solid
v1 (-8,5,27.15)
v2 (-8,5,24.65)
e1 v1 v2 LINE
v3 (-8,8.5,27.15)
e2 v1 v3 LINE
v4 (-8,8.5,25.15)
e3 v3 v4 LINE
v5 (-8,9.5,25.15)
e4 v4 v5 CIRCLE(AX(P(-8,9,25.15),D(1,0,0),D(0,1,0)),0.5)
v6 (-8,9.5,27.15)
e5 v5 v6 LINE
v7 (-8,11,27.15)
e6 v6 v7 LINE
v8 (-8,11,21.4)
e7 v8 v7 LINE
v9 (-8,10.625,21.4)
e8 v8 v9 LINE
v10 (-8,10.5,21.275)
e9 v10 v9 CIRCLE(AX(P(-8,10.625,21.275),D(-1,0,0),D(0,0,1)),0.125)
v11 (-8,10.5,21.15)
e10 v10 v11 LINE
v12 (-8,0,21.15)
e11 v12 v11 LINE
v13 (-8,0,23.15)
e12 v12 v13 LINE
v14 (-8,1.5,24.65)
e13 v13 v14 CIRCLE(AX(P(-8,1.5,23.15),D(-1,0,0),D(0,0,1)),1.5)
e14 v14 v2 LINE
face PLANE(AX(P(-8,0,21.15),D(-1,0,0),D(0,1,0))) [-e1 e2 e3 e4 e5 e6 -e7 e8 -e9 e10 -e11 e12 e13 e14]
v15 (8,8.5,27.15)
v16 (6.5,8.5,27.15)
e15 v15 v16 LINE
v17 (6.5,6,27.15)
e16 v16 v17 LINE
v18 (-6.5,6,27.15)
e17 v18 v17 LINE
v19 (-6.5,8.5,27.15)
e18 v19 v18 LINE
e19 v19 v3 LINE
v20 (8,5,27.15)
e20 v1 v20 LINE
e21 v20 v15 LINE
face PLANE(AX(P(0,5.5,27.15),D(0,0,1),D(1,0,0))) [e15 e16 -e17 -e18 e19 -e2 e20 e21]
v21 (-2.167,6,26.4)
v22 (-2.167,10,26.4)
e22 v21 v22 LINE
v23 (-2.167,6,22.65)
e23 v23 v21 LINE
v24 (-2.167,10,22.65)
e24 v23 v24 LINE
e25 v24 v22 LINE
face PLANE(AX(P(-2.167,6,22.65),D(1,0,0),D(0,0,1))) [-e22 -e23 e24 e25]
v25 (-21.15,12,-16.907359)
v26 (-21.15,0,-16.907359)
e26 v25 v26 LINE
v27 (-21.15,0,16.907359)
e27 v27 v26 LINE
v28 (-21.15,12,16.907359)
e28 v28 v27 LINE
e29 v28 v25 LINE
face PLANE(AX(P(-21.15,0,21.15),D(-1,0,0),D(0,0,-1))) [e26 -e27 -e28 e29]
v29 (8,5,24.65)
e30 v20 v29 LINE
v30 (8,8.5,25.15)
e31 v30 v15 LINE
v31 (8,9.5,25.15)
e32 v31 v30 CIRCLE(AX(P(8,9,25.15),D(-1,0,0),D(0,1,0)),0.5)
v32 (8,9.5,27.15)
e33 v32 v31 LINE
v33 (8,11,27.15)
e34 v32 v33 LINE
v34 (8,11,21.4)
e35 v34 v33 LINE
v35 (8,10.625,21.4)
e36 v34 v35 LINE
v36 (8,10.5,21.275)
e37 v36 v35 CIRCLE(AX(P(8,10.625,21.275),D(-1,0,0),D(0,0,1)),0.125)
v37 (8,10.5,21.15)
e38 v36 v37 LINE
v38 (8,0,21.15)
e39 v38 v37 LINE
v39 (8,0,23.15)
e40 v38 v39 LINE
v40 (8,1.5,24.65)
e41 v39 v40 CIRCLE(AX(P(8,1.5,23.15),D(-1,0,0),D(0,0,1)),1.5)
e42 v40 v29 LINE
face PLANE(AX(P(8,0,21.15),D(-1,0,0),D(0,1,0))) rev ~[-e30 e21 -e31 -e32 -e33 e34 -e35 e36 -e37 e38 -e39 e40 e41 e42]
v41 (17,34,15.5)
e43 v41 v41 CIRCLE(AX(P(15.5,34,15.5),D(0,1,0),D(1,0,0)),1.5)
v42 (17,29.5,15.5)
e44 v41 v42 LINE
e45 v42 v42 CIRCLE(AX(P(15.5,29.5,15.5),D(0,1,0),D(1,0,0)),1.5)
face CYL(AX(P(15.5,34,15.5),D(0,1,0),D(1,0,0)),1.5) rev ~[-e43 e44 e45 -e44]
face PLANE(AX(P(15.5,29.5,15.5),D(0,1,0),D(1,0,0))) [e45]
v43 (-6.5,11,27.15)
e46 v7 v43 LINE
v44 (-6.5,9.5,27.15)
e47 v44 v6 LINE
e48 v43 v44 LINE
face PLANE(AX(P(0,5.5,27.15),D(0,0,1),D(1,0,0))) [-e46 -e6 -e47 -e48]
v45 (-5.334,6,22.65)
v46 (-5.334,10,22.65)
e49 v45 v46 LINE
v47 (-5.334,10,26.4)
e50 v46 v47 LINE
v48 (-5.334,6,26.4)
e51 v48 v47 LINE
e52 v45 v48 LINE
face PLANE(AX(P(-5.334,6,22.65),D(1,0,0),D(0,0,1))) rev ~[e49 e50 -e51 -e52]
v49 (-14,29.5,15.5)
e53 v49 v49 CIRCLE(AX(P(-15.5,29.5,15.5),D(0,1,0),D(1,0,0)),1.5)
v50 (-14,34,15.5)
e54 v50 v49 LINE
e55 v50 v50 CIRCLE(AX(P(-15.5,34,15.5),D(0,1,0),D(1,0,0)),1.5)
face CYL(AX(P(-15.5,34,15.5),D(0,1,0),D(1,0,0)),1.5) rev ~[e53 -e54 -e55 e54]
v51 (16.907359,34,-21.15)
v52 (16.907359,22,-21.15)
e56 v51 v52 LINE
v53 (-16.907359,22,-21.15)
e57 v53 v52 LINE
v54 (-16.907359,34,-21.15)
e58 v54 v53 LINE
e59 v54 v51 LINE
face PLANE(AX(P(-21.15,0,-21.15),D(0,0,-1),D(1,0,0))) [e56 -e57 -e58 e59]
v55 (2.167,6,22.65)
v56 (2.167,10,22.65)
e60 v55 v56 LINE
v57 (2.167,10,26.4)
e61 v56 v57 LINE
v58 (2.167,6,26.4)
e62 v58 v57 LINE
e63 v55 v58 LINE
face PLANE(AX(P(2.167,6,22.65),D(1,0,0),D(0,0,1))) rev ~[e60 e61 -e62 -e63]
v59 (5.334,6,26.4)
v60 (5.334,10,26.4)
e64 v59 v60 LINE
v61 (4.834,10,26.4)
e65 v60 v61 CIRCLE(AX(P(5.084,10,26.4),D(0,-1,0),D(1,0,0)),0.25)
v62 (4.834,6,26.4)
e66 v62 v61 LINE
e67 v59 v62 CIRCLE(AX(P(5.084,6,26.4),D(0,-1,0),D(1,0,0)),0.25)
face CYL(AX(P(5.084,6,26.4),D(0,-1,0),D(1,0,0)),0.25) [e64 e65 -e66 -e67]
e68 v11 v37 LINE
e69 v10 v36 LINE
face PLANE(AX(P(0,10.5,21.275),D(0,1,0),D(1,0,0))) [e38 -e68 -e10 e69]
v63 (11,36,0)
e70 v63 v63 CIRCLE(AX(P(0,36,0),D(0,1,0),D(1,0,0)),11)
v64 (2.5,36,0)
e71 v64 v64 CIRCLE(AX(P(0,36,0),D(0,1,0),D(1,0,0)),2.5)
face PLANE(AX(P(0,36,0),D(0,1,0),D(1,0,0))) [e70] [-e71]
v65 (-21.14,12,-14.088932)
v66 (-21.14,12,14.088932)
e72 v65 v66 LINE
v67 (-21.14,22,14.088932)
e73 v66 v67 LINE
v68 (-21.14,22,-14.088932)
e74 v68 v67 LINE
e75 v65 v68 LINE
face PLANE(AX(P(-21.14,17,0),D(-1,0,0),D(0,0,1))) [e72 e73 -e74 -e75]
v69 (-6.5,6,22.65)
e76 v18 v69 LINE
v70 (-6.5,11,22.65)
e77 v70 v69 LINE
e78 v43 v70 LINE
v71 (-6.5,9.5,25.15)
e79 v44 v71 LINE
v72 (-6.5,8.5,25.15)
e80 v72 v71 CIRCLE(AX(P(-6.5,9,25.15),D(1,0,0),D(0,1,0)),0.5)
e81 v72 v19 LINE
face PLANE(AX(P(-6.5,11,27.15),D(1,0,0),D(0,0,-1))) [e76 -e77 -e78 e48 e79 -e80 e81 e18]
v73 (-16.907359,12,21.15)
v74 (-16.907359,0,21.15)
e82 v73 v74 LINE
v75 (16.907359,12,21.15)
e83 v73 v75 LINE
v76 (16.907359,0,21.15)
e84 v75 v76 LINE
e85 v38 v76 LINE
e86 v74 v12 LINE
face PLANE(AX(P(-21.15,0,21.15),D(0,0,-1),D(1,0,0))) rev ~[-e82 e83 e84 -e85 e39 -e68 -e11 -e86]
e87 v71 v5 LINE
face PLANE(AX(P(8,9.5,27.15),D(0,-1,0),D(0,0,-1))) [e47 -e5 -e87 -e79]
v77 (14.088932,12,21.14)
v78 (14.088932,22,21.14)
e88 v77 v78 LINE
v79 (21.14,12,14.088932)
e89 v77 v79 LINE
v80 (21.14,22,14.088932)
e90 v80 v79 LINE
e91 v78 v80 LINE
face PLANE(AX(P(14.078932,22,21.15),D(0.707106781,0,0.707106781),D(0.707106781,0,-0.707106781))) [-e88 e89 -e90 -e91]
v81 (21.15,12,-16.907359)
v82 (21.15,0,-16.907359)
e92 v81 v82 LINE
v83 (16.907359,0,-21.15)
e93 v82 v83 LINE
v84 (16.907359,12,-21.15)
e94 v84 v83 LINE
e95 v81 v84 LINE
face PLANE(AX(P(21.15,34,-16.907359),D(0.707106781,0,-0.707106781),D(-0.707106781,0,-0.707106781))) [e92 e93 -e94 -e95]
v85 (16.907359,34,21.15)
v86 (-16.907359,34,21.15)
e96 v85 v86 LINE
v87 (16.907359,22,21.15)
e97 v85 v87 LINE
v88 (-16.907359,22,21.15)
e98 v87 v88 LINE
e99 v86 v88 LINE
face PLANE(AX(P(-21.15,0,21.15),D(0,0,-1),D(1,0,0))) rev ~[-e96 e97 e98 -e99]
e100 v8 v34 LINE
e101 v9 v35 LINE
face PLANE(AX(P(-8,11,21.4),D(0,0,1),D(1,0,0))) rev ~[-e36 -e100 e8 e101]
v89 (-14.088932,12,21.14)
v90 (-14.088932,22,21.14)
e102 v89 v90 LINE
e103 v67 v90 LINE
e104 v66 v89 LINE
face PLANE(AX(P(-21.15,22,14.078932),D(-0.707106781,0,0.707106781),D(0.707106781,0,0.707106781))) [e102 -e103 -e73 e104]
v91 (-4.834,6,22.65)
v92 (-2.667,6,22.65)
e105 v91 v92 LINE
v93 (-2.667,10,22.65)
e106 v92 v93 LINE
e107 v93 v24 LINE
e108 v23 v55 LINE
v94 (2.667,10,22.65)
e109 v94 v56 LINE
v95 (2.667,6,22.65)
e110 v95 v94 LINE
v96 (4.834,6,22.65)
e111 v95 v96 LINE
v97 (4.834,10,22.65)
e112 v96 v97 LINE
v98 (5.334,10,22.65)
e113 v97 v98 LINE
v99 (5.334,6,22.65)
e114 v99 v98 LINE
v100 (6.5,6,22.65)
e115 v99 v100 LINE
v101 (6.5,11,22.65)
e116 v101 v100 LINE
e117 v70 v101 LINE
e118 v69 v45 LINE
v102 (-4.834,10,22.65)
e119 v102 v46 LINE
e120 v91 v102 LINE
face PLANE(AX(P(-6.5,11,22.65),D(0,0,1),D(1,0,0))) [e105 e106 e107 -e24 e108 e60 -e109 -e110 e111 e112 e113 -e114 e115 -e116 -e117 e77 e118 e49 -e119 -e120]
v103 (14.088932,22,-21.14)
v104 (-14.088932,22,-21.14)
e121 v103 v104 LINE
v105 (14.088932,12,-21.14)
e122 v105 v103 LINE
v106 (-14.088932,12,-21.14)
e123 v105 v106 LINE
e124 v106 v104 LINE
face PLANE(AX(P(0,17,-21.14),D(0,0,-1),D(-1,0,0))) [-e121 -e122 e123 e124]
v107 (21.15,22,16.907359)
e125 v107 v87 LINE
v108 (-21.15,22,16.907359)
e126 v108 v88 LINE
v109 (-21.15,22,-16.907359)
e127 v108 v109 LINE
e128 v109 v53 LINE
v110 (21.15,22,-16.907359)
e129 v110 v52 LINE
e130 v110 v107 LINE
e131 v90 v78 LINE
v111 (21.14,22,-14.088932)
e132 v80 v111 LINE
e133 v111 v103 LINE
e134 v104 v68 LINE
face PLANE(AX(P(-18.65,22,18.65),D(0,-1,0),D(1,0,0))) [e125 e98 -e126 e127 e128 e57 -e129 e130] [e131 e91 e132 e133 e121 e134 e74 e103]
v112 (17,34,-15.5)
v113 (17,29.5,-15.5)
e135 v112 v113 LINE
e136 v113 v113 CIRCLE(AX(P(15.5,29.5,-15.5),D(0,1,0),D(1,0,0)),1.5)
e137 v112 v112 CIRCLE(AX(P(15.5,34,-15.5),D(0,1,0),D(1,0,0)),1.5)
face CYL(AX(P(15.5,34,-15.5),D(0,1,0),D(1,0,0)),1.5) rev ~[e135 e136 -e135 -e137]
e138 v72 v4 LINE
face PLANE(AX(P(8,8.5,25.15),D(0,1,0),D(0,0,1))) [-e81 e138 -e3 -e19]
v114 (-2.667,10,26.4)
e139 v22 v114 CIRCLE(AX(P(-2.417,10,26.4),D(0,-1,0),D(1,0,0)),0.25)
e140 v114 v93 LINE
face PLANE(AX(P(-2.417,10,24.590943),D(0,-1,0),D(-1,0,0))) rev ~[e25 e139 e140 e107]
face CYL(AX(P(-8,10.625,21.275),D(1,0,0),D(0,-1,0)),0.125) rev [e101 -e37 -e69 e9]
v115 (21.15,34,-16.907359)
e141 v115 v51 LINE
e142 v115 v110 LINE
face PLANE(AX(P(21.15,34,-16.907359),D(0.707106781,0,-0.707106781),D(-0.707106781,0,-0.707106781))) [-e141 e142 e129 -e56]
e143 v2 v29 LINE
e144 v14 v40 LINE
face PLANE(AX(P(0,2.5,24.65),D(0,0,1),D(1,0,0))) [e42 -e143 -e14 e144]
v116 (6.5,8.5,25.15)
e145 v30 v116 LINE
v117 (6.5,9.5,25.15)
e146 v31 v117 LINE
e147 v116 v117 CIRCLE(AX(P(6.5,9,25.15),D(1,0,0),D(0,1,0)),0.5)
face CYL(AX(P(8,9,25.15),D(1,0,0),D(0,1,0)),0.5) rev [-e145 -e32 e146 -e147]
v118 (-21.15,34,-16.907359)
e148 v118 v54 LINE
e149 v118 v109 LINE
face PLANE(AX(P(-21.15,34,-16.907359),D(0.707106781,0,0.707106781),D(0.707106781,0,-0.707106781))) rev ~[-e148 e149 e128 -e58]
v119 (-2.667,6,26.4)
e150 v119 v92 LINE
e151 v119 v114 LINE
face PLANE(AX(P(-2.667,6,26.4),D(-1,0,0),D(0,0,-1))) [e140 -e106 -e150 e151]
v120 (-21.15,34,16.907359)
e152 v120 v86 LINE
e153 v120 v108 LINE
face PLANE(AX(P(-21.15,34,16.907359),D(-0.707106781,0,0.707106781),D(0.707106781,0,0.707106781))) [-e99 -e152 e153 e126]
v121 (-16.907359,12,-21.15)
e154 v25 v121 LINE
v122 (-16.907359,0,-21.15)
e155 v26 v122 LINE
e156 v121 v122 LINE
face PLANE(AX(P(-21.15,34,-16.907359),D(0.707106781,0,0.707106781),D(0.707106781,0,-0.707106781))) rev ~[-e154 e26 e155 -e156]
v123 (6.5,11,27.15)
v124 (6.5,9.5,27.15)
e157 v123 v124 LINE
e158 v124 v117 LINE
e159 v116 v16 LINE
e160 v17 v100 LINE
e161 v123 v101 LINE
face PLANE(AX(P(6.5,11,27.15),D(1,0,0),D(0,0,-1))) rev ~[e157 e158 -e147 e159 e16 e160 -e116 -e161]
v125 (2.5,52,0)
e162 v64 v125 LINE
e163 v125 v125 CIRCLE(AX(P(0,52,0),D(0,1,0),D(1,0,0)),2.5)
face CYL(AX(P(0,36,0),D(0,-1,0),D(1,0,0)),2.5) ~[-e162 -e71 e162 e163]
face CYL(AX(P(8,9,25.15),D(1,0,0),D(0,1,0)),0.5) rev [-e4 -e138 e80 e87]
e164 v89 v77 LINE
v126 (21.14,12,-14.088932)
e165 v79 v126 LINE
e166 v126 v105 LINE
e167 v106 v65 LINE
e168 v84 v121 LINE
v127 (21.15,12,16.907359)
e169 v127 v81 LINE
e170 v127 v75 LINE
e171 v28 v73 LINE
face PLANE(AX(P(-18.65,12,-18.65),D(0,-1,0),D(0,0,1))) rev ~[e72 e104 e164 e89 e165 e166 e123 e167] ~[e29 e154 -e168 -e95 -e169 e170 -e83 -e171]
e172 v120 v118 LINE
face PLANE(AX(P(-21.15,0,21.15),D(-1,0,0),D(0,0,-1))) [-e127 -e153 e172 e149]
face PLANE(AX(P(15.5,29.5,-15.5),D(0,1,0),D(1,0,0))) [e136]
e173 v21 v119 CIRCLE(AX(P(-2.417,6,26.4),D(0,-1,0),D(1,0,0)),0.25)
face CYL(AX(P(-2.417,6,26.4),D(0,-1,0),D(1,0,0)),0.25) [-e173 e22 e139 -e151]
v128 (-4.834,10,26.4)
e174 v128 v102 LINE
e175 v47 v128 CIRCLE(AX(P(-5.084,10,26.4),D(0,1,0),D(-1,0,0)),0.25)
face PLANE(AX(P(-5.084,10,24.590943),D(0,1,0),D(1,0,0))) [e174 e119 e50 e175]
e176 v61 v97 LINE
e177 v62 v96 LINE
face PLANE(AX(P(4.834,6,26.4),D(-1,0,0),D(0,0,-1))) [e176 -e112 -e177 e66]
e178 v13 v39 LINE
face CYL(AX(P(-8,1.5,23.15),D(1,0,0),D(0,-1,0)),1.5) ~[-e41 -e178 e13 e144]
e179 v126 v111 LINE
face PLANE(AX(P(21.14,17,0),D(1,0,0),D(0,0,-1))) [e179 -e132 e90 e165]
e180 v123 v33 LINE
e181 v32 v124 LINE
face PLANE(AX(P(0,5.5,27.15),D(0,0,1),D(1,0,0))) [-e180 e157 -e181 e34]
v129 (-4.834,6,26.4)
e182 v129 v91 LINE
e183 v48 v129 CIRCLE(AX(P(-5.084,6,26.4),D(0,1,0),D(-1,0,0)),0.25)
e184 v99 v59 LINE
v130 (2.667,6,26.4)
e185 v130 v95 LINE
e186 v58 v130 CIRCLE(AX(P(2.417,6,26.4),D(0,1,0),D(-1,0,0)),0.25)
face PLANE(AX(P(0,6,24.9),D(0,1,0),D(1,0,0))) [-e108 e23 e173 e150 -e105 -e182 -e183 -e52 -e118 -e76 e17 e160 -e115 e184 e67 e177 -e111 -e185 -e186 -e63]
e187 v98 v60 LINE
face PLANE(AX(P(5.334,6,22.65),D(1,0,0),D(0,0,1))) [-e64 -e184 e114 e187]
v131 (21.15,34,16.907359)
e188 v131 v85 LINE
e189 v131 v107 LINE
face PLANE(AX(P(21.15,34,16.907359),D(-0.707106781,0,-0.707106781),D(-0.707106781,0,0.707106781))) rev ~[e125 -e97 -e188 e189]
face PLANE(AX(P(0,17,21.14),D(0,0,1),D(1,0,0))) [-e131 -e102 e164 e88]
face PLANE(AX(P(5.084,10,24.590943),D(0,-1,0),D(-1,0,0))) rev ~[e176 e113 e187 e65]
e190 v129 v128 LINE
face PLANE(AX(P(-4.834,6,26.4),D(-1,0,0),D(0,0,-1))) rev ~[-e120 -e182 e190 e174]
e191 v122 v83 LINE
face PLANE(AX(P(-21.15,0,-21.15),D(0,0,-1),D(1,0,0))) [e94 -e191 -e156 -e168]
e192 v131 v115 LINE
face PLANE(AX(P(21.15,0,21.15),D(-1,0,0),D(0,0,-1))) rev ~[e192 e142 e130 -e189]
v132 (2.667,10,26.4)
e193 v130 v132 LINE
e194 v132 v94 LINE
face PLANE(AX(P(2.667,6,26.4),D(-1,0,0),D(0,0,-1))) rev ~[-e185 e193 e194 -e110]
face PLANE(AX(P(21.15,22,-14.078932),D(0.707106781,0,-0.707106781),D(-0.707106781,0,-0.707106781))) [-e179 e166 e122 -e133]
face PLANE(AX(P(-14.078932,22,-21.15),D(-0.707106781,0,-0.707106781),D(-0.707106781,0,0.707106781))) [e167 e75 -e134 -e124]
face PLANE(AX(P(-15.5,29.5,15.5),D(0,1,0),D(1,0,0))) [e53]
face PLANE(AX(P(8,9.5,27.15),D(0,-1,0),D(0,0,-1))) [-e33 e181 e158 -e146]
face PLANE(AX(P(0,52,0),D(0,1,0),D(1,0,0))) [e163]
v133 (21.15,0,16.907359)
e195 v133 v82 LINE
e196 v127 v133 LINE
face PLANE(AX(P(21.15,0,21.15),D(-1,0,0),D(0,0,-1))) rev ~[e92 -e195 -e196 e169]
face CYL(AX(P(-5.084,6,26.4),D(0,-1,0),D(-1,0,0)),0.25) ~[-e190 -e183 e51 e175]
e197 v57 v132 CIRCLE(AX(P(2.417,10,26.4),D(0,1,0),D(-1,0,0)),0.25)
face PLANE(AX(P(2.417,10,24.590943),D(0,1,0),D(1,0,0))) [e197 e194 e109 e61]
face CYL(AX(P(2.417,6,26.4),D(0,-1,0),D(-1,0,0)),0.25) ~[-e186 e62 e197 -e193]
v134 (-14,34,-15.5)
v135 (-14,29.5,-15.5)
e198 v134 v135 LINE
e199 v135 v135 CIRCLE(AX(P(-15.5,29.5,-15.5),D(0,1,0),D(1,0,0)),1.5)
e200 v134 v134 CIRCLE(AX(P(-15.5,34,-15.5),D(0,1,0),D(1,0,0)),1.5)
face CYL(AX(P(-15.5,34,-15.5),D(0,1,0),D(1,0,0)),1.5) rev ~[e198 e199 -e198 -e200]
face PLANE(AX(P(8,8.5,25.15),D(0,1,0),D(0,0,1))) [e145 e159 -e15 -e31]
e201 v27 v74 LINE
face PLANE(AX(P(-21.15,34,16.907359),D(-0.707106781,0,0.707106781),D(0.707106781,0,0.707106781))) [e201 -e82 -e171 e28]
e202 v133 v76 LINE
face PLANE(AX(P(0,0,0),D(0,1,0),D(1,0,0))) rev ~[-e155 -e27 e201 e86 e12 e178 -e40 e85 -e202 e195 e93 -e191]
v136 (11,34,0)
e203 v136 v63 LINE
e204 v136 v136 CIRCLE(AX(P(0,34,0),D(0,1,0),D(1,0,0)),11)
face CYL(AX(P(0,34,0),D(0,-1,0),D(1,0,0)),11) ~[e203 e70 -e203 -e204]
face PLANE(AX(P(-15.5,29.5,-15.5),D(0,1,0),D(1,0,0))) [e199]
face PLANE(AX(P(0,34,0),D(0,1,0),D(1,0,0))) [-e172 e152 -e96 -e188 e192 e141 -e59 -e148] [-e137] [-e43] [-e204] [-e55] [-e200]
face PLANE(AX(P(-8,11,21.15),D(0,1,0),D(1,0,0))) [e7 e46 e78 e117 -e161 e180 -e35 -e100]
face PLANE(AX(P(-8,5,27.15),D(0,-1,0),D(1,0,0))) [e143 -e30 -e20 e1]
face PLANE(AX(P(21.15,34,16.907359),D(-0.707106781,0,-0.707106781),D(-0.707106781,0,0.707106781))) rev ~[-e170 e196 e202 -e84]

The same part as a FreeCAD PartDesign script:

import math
import FreeCAD as App
import Part
import Sketcher

V = App.Vector
Q = App.Units.Quantity


def edges_at(feature, points):
    """Names of the edges that pass closest to the given points."""
    edges = feature.Shape.Edges
    near = lambda p: min(range(len(edges)), key=lambda i: edges[i].distToShape(Part.Vertex(*p))[0])
    return sorted({f"Edge{near(p) + 1}" for p in points})


def add_polygon(sketch, points):
    """Adds a closed chain of lines whose ends are joined by coincident constraints."""
    first, n = sketch.GeometryCount, len(points)
    for a, b in zip(points, points[1:] + points[:1]):
        sketch.addGeometry(Part.LineSegment(App.Vector(*a, 0), App.Vector(*b, 0)), False)
    for i in range(n):
        sketch.addConstraint(Sketcher.Constraint("Coincident", first + i, 2, first + (i + 1) % n, 1))

doc = App.newDocument("Part")
params = doc.addObject("Spreadsheet::Sheet", "Params")
for row, (alias, value) in enumerate([
    ("sketch1_width", "42.3 mm"),
    ("pad1_length", "34 mm"),
    ("sketch2_diameter", "22 mm"),
    ("pad2_length", "2 mm"),
    ("sketch3_diameter", "5 mm"),
    ("pad3_length", "16 mm"),
    ("sketch4_length", "6 mm"),
    ("sketch5_width", "10 mm"),
    ("pocket2_length", "0.01 mm"),
    ("sketch6_length", "10 mm"),
    ("pocket3_length", "10 mm"),
    ("sketch7_diameter", "3 mm"),
    ("pocket4_length", "4.5 mm"),
    ("sketch8_width", "16 mm"),
    ("sketch8_height", "11 mm"),
    ("pad4_length", "6 mm"),
    ("sketch9_width", "16 mm"),
    ("sketch9_height", "5 mm"),
    ("pocket5_length", "2.5 mm"),
    ("fillet_radius", "1.5 mm"),
    ("sketch10_width", "13 mm"),
    ("sketch10_height", "4.5 mm"),
    ("pocket6_length", "5 mm"),
    ("sketch11_radius", "0.5 mm"),
    ("sketch11_height", "2 mm"),
    ("sketch12_radius", "0.25 mm"),
    ("sketch12_height", "3.75 mm"),
    ("pad5_length", "4 mm"),
    ("sketch13_width", "16 mm"),
    ("sketch13_height", "0.25 mm"),
    ("pocket8_length", "0.5 mm"),
    ("fillet2_radius", "0.125 mm"),
], start=1):
    params.set(f"A{row}", alias)
    params.set(f"B{row}", "=" + value)
    params.setAlias(f"B{row}", alias)

body = doc.addObject("PartDesign::Body", "Body")

sketch1 = body.newObject("Sketcher::SketchObject", "Sketch")
sketch1.AttachmentSupport = (doc.getObject("XZ_Plane"), [""])
sketch1.MapMode = "FlatFace"
add_polygon(sketch1, [(-21.15, -21.15), (-21.15, 21.15), (21.15, 21.15), (21.15, -21.15)])
sketch1.addConstraint(Sketcher.Constraint("Vertical", 0))
sketch1.addConstraint(Sketcher.Constraint("Horizontal", 1))
sketch1.addConstraint(Sketcher.Constraint("Vertical", 2))
sketch1.addConstraint(Sketcher.Constraint("Horizontal", 3))
sketch1.addConstraint(Sketcher.Constraint("Symmetric", 0, 2, 2, 2, -1, 1))
sketch1.addConstraint(Sketcher.Constraint("Equal", 3, 0))
sketch1.addConstraint(Sketcher.Constraint("DistanceX", 1, 1, 1, 2, Q("42.3 mm")))
sketch1.setExpression("Constraints[10]", "Params.sketch1_width")
pad1 = body.newObject("PartDesign::Pad", "Pad")
pad1.Profile = sketch1
pad1.setExpression("Length", "Params.pad1_length")
pad1.Reversed = True

sketch2 = body.newObject("Sketcher::SketchObject", "Sketch001")
sketch2.AttachmentSupport = (doc.getObject("XZ_Plane"), [""])
sketch2.MapMode = "FlatFace"
sketch2.AttachmentOffset = App.Placement(V(0, 0, -34), App.Rotation())
sketch2.addGeometry(Part.Circle(V(0, 0, 0), V(0, 0, 1), 11), False)
sketch2.addConstraint(Sketcher.Constraint("Coincident", 0, 3, -1, 1))
sketch2.addConstraint(Sketcher.Constraint("Diameter", 0, Q("22 mm")))
sketch2.setExpression("Constraints[1]", "Params.sketch2_diameter")
pad2 = body.newObject("PartDesign::Pad", "Pad001")
pad2.Profile = sketch2
pad2.setExpression("Length", "Params.pad2_length")
pad2.Reversed = True

sketch3 = body.newObject("Sketcher::SketchObject", "Sketch002")
sketch3.AttachmentSupport = (doc.getObject("XZ_Plane"), [""])
sketch3.MapMode = "FlatFace"
sketch3.AttachmentOffset = App.Placement(V(0, 0, -36), App.Rotation())
sketch3.addGeometry(Part.Circle(V(0, 0, 0), V(0, 0, 1), 2.5), False)
sketch3.addConstraint(Sketcher.Constraint("Coincident", 0, 3, -1, 1))
sketch3.addConstraint(Sketcher.Constraint("Diameter", 0, Q("5 mm")))
sketch3.setExpression("Constraints[1]", "Params.sketch3_diameter")
pad3 = body.newObject("PartDesign::Pad", "Pad002")
pad3.Profile = sketch3
pad3.setExpression("Length", "Params.pad3_length")
pad3.Reversed = True

sketch4 = body.newObject("Sketcher::SketchObject", "Sketch003")
sketch4.AttachmentSupport = (doc.getObject("XZ_Plane"), [""])
sketch4.MapMode = "FlatFace"
sketch4.AttachmentOffset = App.Placement(V(0, 0, -34), App.Rotation())
add_polygon(sketch4, [(-21.15, -16.907359), (-16.907359, -21.15), (-21.15, -21.15)])
add_polygon(sketch4, [(21.15, -16.907359), (21.15, -21.15), (16.907359, -21.15)])
add_polygon(sketch4, [(21.15, 16.907359), (16.907359, 21.15), (21.15, 21.15)])
add_polygon(sketch4, [(-21.15, 16.907359), (-21.15, 21.15), (-16.907359, 21.15)])
sketch4.addConstraint(Sketcher.Constraint("Horizontal", 1))
sketch4.addConstraint(Sketcher.Constraint("Vertical", 2))
sketch4.addConstraint(Sketcher.Constraint("Vertical", 3))
sketch4.addConstraint(Sketcher.Constraint("Horizontal", 4))
sketch4.addConstraint(Sketcher.Constraint("Horizontal", 7))
sketch4.addConstraint(Sketcher.Constraint("Vertical", 8))
sketch4.addConstraint(Sketcher.Constraint("Vertical", 9))
sketch4.addConstraint(Sketcher.Constraint("Horizontal", 10))
sketch4.addConstraint(Sketcher.Constraint("Symmetric", 0, 2, 6, 2, -1, 1))
sketch4.addConstraint(Sketcher.Constraint("Symmetric", 2, 2, 8, 2, -1, 1))
sketch4.addConstraint(Sketcher.Constraint("Symmetric", 3, 2, 9, 2, -1, 1))
sketch4.addConstraint(Sketcher.Constraint("Symmetric", 1, 2, 3, 2, -2))
sketch4.addConstraint(Sketcher.Constraint("Perpendicular", 0, 5))
sketch4.addConstraint(Sketcher.Constraint("Perpendicular", 6, 11))
sketch4.addConstraint(Sketcher.Constraint("Horizontal", 2, 2, 5, 2))
sketch4.addConstraint(Sketcher.Constraint("Horizontal", 8, 2, 11, 2))
sketch4.addConstraint(Sketcher.Constraint("Vertical", 4, 2, 6, 2))
sketch4.addConstraint(Sketcher.Constraint("Distance", 0, Q("6 mm")))
sketch4.addConstraint(Sketcher.Constraint("DistanceX", 1, 2, 3, 2, Q("42.3 mm")))
sketch4.addConstraint(Sketcher.Constraint("DistanceY", 4, 2, 6, 2, Q("42.3 mm")))
sketch4.setExpression("Constraints[29]", "Params.sketch4_length")
pocket1 = body.newObject("PartDesign::Pocket", "Pocket")
pocket1.Profile = sketch4
pocket1.Type = "ThroughAll"
pocket1.Midplane = True

sketch5 = body.newObject("Sketcher::SketchObject", "Sketch004")
sketch5.AttachmentSupport = (doc.getObject("YZ_Plane"), [""])
sketch5.MapMode = "FlatFace"
sketch5.AttachmentOffset = App.Placement(V(0, 0, 21.15), App.Rotation())
add_polygon(sketch5, [(22, 16.907359), (12, 16.907359), (12, -16.907359), (22, -16.907359)])
sketch5.addConstraint(Sketcher.Constraint("Horizontal", 0))
sketch5.addConstraint(Sketcher.Constraint("Vertical", 1))
sketch5.addConstraint(Sketcher.Constraint("Horizontal", 2))
sketch5.addConstraint(Sketcher.Constraint("Vertical", 3))
sketch5.addConstraint(Sketcher.Constraint("DistanceX", 0, 2, 0, 1, Q("10 mm")))
sketch5.addConstraint(Sketcher.Constraint("DistanceX", -1, 1, 0, 2, Q("12 mm")))
sketch5.addConstraint(Sketcher.Constraint("DistanceY", 1, 2, 1, 1, Q("33.814719 mm")))
sketch5.addConstraint(Sketcher.Constraint("DistanceY", -1, 1, 0, 2, Q("16.907359 mm")))
sketch5.setExpression("Constraints[8]", "Params.sketch5_width")
pocket2 = body.newObject("PartDesign::Pocket", "Pocket001")
pocket2.Profile = sketch5
pocket2.setExpression("Length", "Params.pocket2_length")

sketch6 = body.newObject("Sketcher::SketchObject", "Sketch005")
sketch6.AttachmentSupport = (doc.getObject("XZ_Plane"), [""])
sketch6.MapMode = "FlatFace"
sketch6.AttachmentOffset = App.Placement(V(0, 0, -22), App.Rotation())
add_polygon(sketch6, [(14.078932, -21.15), (21.15, -14.078932), (21.15, -21.15)])
sketch6.addConstraint(Sketcher.Constraint("Vertical", 1))
sketch6.addConstraint(Sketcher.Constraint("Horizontal", 2))
sketch6.addConstraint(Sketcher.Constraint("Equal", 2, 1))
sketch6.addConstraint(Sketcher.Constraint("Distance", 0, Q("10 mm")))
sketch6.addConstraint(Sketcher.Constraint("DistanceX", -1, 1, 0, 2, Q("21.15 mm")))
sketch6.addConstraint(Sketcher.Constraint("DistanceY", 1, 2, -1, 1, Q("21.15 mm")))
sketch6.setExpression("Constraints[6]", "Params.sketch6_length")
pocket3 = body.newObject("PartDesign::Pocket", "Pocket002")
pocket3.Profile = sketch6
pocket3.setExpression("Length", "Params.pocket3_length")
pocket3.Reversed = True
doc.recompute()

polarpattern = body.newObject("PartDesign::PolarPattern", "PolarPattern")
polarpattern.Originals = [pocket2, pocket3]
polarpattern.Axis = (doc.getObject("Y_Axis"), [""])
polarpattern.Angle = 360
polarpattern.Occurrences = 4
body.Tip = polarpattern

sketch7 = body.newObject("Sketcher::SketchObject", "Sketch006")
sketch7.AttachmentSupport = (doc.getObject("XZ_Plane"), [""])
sketch7.MapMode = "FlatFace"
sketch7.AttachmentOffset = App.Placement(V(0, 0, -34), App.Rotation())
sketch7.addGeometry(Part.Circle(V(15.5, -15.5, 0), V(0, 0, 1), 1.5), False)
sketch7.addGeometry(Part.Circle(V(15.5, 15.5, 0), V(0, 0, 1), 1.5), False)
sketch7.addGeometry(Part.Circle(V(-15.5, 15.5, 0), V(0, 0, 1), 1.5), False)
sketch7.addGeometry(Part.Circle(V(-15.5, -15.5, 0), V(0, 0, 1), 1.5), False)
sketch7.addConstraint(Sketcher.Constraint("Equal", 0, 1))
sketch7.addConstraint(Sketcher.Constraint("Equal", 1, 2))
sketch7.addConstraint(Sketcher.Constraint("Equal", 2, 3))
sketch7.addConstraint(Sketcher.Constraint("Symmetric", 0, 3, 2, 3, -1, 1))
sketch7.addConstraint(Sketcher.Constraint("Symmetric", 1, 3, 3, 3, -1, 1))
sketch7.addConstraint(Sketcher.Constraint("Symmetric", 1, 3, 2, 3, -2))
sketch7.addConstraint(Sketcher.Constraint("Diameter", 0, Q("3 mm")))
sketch7.addConstraint(Sketcher.Constraint("DistanceY", 0, 3, 1, 3, Q("31 mm")))
sketch7.addConstraint(Sketcher.Constraint("DistanceX", 2, 3, 1, 3, Q("31 mm")))
sketch7.setExpression("Constraints[6]", "Params.sketch7_diameter")
pocket4 = body.newObject("PartDesign::Pocket", "Pocket003")
pocket4.Profile = sketch7
pocket4.setExpression("Length", "Params.pocket4_length")
pocket4.Reversed = True

sketch8 = body.newObject("Sketcher::SketchObject", "Sketch007")
sketch8.AttachmentSupport = (doc.getObject("XY_Plane"), [""])
sketch8.MapMode = "FlatFace"
sketch8.AttachmentOffset = App.Placement(V(0, 0, 21.15), App.Rotation())
add_polygon(sketch8, [(-8, 11), (-8, 0), (8, 0), (8, 11)])
sketch8.addConstraint(Sketcher.Constraint("Vertical", 0))
sketch8.addConstraint(Sketcher.Constraint("Horizontal", 1))
sketch8.addConstraint(Sketcher.Constraint("Vertical", 2))
sketch8.addConstraint(Sketcher.Constraint("Horizontal", 3))
sketch8.addConstraint(Sketcher.Constraint("Symmetric", 0, 2, 1, 2, -1, 1))
sketch8.addConstraint(Sketcher.Constraint("DistanceX", 1, 1, 1, 2, Q("16 mm")))
sketch8.addConstraint(Sketcher.Constraint("DistanceY", 0, 2, 0, 1, Q("11 mm")))
sketch8.setExpression("Constraints[9]", "Params.sketch8_width")
sketch8.setExpression("Constraints[10]", "Params.sketch8_height")
pad4 = body.newObject("PartDesign::Pad", "Pad003")
pad4.Profile = sketch8
pad4.setExpression("Length", "Params.pad4_length")

sketch9 = body.newObject("Sketcher::SketchObject", "Sketch008")
sketch9.AttachmentSupport = (doc.getObject("XY_Plane"), [""])
sketch9.MapMode = "FlatFace"
sketch9.AttachmentOffset = App.Placement(V(0, 0, 27.15), App.Rotation())
add_polygon(sketch9, [(-8, 5), (-8, 0), (8, 0), (8, 5)])
sketch9.addConstraint(Sketcher.Constraint("Vertical", 0))
sketch9.addConstraint(Sketcher.Constraint("Horizontal", 1))
sketch9.addConstraint(Sketcher.Constraint("Vertical", 2))
sketch9.addConstraint(Sketcher.Constraint("Horizontal", 3))
sketch9.addConstraint(Sketcher.Constraint("Symmetric", 0, 2, 1, 2, -1, 1))
sketch9.addConstraint(Sketcher.Constraint("DistanceX", 1, 1, 1, 2, Q("16 mm")))
sketch9.addConstraint(Sketcher.Constraint("DistanceY", 0, 2, 0, 1, Q("5 mm")))
sketch9.setExpression("Constraints[9]", "Params.sketch9_width")
sketch9.setExpression("Constraints[10]", "Params.sketch9_height")
pocket5 = body.newObject("PartDesign::Pocket", "Pocket004")
pocket5.Profile = sketch9
pocket5.setExpression("Length", "Params.pocket5_length")
doc.recompute()

fillet = body.newObject("PartDesign::Fillet", "Fillet")
fillet.Base = (pocket5, edges_at(pocket5, [(0, 0, 24.65)]))
fillet.setExpression("Radius", "Params.fillet_radius")

sketch10 = body.newObject("Sketcher::SketchObject", "Sketch009")
sketch10.AttachmentSupport = (doc.getObject("XZ_Plane"), [""])
sketch10.MapMode = "FlatFace"
sketch10.AttachmentOffset = App.Placement(V(0, 0, -11), App.Rotation())
add_polygon(sketch10, [(-6.5, 22.65), (-6.5, 27.15), (6.5, 27.15), (6.5, 22.65)])
sketch10.addConstraint(Sketcher.Constraint("Vertical", 0))
sketch10.addConstraint(Sketcher.Constraint("Horizontal", 1))
sketch10.addConstraint(Sketcher.Constraint("Vertical", 2))
sketch10.addConstraint(Sketcher.Constraint("Horizontal", 3))
sketch10.addConstraint(Sketcher.Constraint("DistanceX", 1, 1, 1, 2, Q("13 mm")))
sketch10.addConstraint(Sketcher.Constraint("DistanceY", 0, 1, 0, 2, Q("4.5 mm")))
sketch10.addConstraint(Sketcher.Constraint("DistanceX", 0, 2, -1, 1, Q("6.5 mm")))
sketch10.addConstraint(Sketcher.Constraint("DistanceY", -1, 1, 0, 2, Q("27.15 mm")))
sketch10.setExpression("Constraints[8]", "Params.sketch10_width")
sketch10.setExpression("Constraints[9]", "Params.sketch10_height")
pocket6 = body.newObject("PartDesign::Pocket", "Pocket005")
pocket6.Profile = sketch10
pocket6.setExpression("Length", "Params.pocket6_length")
pocket6.Reversed = True

sketch11 = body.newObject("Sketcher::SketchObject", "Sketch010")
sketch11.AttachmentSupport = (doc.getObject("YZ_Plane"), [""])
sketch11.MapMode = "FlatFace"
sketch11.AttachmentOffset = App.Placement(V(0, 0, 8), App.Rotation())
sketch11.addGeometry(Part.LineSegment(V(9.5, 25.15, 0), V(9.5, 27.15, 0)), False)
sketch11.addGeometry(Part.LineSegment(V(9.5, 27.15, 0), V(8.5, 27.15, 0)), False)
sketch11.addGeometry(Part.LineSegment(V(8.5, 27.15, 0), V(8.5, 25.15, 0)), False)
sketch11.addGeometry(Part.ArcOfCircle(Part.Circle(V(9, 25.15, 0), V(0, 0, 1), 0.5), math.radians(180), math.radians(360)), False)
sketch11.addConstraint(Sketcher.Constraint("Coincident", 0, 2, 1, 1))
sketch11.addConstraint(Sketcher.Constraint("Coincident", 1, 2, 2, 1))
sketch11.addConstraint(Sketcher.Constraint("Tangent", 2, 2, 3, 1))
sketch11.addConstraint(Sketcher.Constraint("Tangent", 3, 2, 0, 1))
sketch11.addConstraint(Sketcher.Constraint("Vertical", 0))
sketch11.addConstraint(Sketcher.Constraint("Horizontal", 1))
sketch11.addConstraint(Sketcher.Constraint("Vertical", 2))
sketch11.addConstraint(Sketcher.Constraint("Radius", 3, Q("0.5 mm")))
sketch11.addConstraint(Sketcher.Constraint("DistanceY", 0, 1, 0, 2, Q("2 mm")))
sketch11.addConstraint(Sketcher.Constraint("DistanceX", -1, 1, 3, 3, Q("9 mm")))
sketch11.addConstraint(Sketcher.Constraint("DistanceY", -1, 1, 3, 3, Q("25.15 mm")))
sketch11.setExpression("Constraints[7]", "Params.sketch11_radius")
sketch11.setExpression("Constraints[8]", "Params.sketch11_height")
pocket7 = body.newObject("PartDesign::Pocket", "Pocket006")
pocket7.Profile = sketch11
pocket7.Type = "ThroughAll"

sketch12 = body.newObject("Sketcher::SketchObject", "Sketch011")
sketch12.AttachmentSupport = (doc.getObject("XZ_Plane"), [""])
sketch12.MapMode = "FlatFace"
sketch12.AttachmentOffset = App.Placement(V(0, 0, -6), App.Rotation())
sketch12.addGeometry(Part.LineSegment(V(-2.167, 22.65, 0), V(-2.667, 22.65, 0)), False)
sketch12.addGeometry(Part.LineSegment(V(-2.667, 22.65, 0), V(-2.667, 26.4, 0)), False)
sketch12.addGeometry(Part.ArcOfCircle(Part.Circle(V(-2.417, 26.4, 0), V(0, 0, 1), 0.25), math.radians(0), math.radians(180)), False)
sketch12.addGeometry(Part.LineSegment(V(-2.167, 26.4, 0), V(-2.167, 22.65, 0)), False)
sketch12.addGeometry(Part.LineSegment(V(5.334, 26.4, 0), V(5.334, 22.65, 0)), False)
sketch12.addGeometry(Part.LineSegment(V(5.334, 22.65, 0), V(4.834, 22.65, 0)), False)
sketch12.addGeometry(Part.LineSegment(V(4.834, 22.65, 0), V(4.834, 26.4, 0)), False)
sketch12.addGeometry(Part.ArcOfCircle(Part.Circle(V(5.084, 26.4, 0), V(0, 0, 1), 0.25), math.radians(0), math.radians(180)), False)
sketch12.addGeometry(Part.LineSegment(V(-4.834, 22.65, 0), V(-5.334, 22.65, 0)), False)
sketch12.addGeometry(Part.LineSegment(V(-5.334, 22.65, 0), V(-5.334, 26.4, 0)), False)
sketch12.addGeometry(Part.ArcOfCircle(Part.Circle(V(-5.084, 26.4, 0), V(0, 0, 1), 0.25), math.radians(0), math.radians(180)), False)
sketch12.addGeometry(Part.LineSegment(V(-4.834, 26.4, 0), V(-4.834, 22.65, 0)), False)
sketch12.addGeometry(Part.LineSegment(V(2.167, 22.65, 0), V(2.167, 26.4, 0)), False)
sketch12.addGeometry(Part.ArcOfCircle(Part.Circle(V(2.417, 26.4, 0), V(0, 0, 1), 0.25), math.radians(0), math.radians(180)), False)
sketch12.addGeometry(Part.LineSegment(V(2.667, 26.4, 0), V(2.667, 22.65, 0)), False)
sketch12.addGeometry(Part.LineSegment(V(2.667, 22.65, 0), V(2.167, 22.65, 0)), False)
sketch12.addConstraint(Sketcher.Constraint("Coincident", 0, 2, 1, 1))
sketch12.addConstraint(Sketcher.Constraint("Tangent", 1, 2, 2, 2))
sketch12.addConstraint(Sketcher.Constraint("Tangent", 2, 1, 3, 1))
sketch12.addConstraint(Sketcher.Constraint("Coincident", 3, 2, 0, 1))
sketch12.addConstraint(Sketcher.Constraint("Coincident", 4, 2, 5, 1))
sketch12.addConstraint(Sketcher.Constraint("Coincident", 5, 2, 6, 1))
sketch12.addConstraint(Sketcher.Constraint("Tangent", 6, 2, 7, 2))
sketch12.addConstraint(Sketcher.Constraint("Tangent", 7, 1, 4, 1))
sketch12.addConstraint(Sketcher.Constraint("Coincident", 8, 2, 9, 1))
sketch12.addConstraint(Sketcher.Constraint("Tangent", 9, 2, 10, 2))
sketch12.addConstraint(Sketcher.Constraint("Tangent", 10, 1, 11, 1))
sketch12.addConstraint(Sketcher.Constraint("Coincident", 11, 2, 8, 1))
sketch12.addConstraint(Sketcher.Constraint("Tangent", 12, 2, 13, 2))
sketch12.addConstraint(Sketcher.Constraint("Tangent", 13, 1, 14, 1))
sketch12.addConstraint(Sketcher.Constraint("Coincident", 14, 2, 15, 1))
sketch12.addConstraint(Sketcher.Constraint("Coincident", 15, 2, 12, 1))
sketch12.addConstraint(Sketcher.Constraint("Horizontal", 0))
sketch12.addConstraint(Sketcher.Constraint("Vertical", 1))
sketch12.addConstraint(Sketcher.Constraint("Vertical", 3))
sketch12.addConstraint(Sketcher.Constraint("Vertical", 4))
sketch12.addConstraint(Sketcher.Constraint("Horizontal", 5))
sketch12.addConstraint(Sketcher.Constraint("Vertical", 6))
sketch12.addConstraint(Sketcher.Constraint("Horizontal", 8))
sketch12.addConstraint(Sketcher.Constraint("Vertical", 9))
sketch12.addConstraint(Sketcher.Constraint("Vertical", 11))
sketch12.addConstraint(Sketcher.Constraint("Vertical", 12))
sketch12.addConstraint(Sketcher.Constraint("Vertical", 14))
sketch12.addConstraint(Sketcher.Constraint("Horizontal", 15))
sketch12.addConstraint(Sketcher.Constraint("Equal", 2, 7))
sketch12.addConstraint(Sketcher.Constraint("Equal", 7, 10))
sketch12.addConstraint(Sketcher.Constraint("Equal", 10, 13))
sketch12.addConstraint(Sketcher.Constraint("Symmetric", 7, 3, 10, 3, -2))
sketch12.addConstraint(Sketcher.Constraint("Symmetric", 2, 3, 13, 3, -2))
sketch12.addConstraint(Sketcher.Constraint("Horizontal", 2, 3, 7, 3))
sketch12.addConstraint(Sketcher.Constraint("Horizontal", 3, 2, 4, 2))
sketch12.addConstraint(Sketcher.Constraint("Horizontal", 5, 2, 8, 2))
sketch12.addConstraint(Sketcher.Constraint("Horizontal", 11, 2, 14, 2))
sketch12.addConstraint(Sketcher.Constraint("Radius", 2, Q("0.25 mm")))
sketch12.addConstraint(Sketcher.Constraint("DistanceY", 1, 1, 1, 2, Q("3.75 mm")))
sketch12.addConstraint(Sketcher.Constraint("DistanceY", -1, 1, 2, 3, Q("26.4 mm")))
sketch12.addConstraint(Sketcher.Constraint("DistanceX", 2, 3, -1, 1, Q("2.417 mm")))
sketch12.addConstraint(Sketcher.Constraint("DistanceX", -1, 1, 7, 3, Q("5.084 mm")))
sketch12.setExpression("Constraints[37]", "Params.sketch12_radius")
sketch12.setExpression("Constraints[38]", "Params.sketch12_height")
pad5 = body.newObject("PartDesign::Pad", "Pad004")
pad5.Profile = sketch12
pad5.setExpression("Length", "Params.pad5_length")
pad5.Reversed = True

sketch13 = body.newObject("Sketcher::SketchObject", "Sketch012")
sketch13.AttachmentSupport = (doc.getObject("XZ_Plane"), [""])
sketch13.MapMode = "FlatFace"
sketch13.AttachmentOffset = App.Placement(V(0, 0, -11), App.Rotation())
add_polygon(sketch13, [(-8, 21.15), (-8, 21.4), (8, 21.4), (8, 21.15)])
sketch13.addConstraint(Sketcher.Constraint("Vertical", 0))
sketch13.addConstraint(Sketcher.Constraint("Horizontal", 1))
sketch13.addConstraint(Sketcher.Constraint("Vertical", 2))
sketch13.addConstraint(Sketcher.Constraint("Horizontal", 3))
sketch13.addConstraint(Sketcher.Constraint("DistanceX", 1, 1, 1, 2, Q("16 mm")))
sketch13.addConstraint(Sketcher.Constraint("DistanceX", 0, 2, -1, 1, Q("8 mm")))
sketch13.addConstraint(Sketcher.Constraint("DistanceY", 0, 1, 0, 2, Q("0.25 mm")))
sketch13.addConstraint(Sketcher.Constraint("DistanceY", -1, 1, 0, 2, Q("21.4 mm")))
sketch13.setExpression("Constraints[8]", "Params.sketch13_width")
sketch13.setExpression("Constraints[10]", "Params.sketch13_height")
pocket8 = body.newObject("PartDesign::Pocket", "Pocket007")
pocket8.Profile = sketch13
pocket8.setExpression("Length", "Params.pocket8_length")
pocket8.Reversed = True
doc.recompute()

fillet2 = body.newObject("PartDesign::Fillet", "Fillet001")
fillet2.Base = (pocket8, edges_at(pocket8, [(0, 10.5, 21.4)]))
fillet2.setExpression("Radius", "Params.fillet2_radius")

doc.recompute()
